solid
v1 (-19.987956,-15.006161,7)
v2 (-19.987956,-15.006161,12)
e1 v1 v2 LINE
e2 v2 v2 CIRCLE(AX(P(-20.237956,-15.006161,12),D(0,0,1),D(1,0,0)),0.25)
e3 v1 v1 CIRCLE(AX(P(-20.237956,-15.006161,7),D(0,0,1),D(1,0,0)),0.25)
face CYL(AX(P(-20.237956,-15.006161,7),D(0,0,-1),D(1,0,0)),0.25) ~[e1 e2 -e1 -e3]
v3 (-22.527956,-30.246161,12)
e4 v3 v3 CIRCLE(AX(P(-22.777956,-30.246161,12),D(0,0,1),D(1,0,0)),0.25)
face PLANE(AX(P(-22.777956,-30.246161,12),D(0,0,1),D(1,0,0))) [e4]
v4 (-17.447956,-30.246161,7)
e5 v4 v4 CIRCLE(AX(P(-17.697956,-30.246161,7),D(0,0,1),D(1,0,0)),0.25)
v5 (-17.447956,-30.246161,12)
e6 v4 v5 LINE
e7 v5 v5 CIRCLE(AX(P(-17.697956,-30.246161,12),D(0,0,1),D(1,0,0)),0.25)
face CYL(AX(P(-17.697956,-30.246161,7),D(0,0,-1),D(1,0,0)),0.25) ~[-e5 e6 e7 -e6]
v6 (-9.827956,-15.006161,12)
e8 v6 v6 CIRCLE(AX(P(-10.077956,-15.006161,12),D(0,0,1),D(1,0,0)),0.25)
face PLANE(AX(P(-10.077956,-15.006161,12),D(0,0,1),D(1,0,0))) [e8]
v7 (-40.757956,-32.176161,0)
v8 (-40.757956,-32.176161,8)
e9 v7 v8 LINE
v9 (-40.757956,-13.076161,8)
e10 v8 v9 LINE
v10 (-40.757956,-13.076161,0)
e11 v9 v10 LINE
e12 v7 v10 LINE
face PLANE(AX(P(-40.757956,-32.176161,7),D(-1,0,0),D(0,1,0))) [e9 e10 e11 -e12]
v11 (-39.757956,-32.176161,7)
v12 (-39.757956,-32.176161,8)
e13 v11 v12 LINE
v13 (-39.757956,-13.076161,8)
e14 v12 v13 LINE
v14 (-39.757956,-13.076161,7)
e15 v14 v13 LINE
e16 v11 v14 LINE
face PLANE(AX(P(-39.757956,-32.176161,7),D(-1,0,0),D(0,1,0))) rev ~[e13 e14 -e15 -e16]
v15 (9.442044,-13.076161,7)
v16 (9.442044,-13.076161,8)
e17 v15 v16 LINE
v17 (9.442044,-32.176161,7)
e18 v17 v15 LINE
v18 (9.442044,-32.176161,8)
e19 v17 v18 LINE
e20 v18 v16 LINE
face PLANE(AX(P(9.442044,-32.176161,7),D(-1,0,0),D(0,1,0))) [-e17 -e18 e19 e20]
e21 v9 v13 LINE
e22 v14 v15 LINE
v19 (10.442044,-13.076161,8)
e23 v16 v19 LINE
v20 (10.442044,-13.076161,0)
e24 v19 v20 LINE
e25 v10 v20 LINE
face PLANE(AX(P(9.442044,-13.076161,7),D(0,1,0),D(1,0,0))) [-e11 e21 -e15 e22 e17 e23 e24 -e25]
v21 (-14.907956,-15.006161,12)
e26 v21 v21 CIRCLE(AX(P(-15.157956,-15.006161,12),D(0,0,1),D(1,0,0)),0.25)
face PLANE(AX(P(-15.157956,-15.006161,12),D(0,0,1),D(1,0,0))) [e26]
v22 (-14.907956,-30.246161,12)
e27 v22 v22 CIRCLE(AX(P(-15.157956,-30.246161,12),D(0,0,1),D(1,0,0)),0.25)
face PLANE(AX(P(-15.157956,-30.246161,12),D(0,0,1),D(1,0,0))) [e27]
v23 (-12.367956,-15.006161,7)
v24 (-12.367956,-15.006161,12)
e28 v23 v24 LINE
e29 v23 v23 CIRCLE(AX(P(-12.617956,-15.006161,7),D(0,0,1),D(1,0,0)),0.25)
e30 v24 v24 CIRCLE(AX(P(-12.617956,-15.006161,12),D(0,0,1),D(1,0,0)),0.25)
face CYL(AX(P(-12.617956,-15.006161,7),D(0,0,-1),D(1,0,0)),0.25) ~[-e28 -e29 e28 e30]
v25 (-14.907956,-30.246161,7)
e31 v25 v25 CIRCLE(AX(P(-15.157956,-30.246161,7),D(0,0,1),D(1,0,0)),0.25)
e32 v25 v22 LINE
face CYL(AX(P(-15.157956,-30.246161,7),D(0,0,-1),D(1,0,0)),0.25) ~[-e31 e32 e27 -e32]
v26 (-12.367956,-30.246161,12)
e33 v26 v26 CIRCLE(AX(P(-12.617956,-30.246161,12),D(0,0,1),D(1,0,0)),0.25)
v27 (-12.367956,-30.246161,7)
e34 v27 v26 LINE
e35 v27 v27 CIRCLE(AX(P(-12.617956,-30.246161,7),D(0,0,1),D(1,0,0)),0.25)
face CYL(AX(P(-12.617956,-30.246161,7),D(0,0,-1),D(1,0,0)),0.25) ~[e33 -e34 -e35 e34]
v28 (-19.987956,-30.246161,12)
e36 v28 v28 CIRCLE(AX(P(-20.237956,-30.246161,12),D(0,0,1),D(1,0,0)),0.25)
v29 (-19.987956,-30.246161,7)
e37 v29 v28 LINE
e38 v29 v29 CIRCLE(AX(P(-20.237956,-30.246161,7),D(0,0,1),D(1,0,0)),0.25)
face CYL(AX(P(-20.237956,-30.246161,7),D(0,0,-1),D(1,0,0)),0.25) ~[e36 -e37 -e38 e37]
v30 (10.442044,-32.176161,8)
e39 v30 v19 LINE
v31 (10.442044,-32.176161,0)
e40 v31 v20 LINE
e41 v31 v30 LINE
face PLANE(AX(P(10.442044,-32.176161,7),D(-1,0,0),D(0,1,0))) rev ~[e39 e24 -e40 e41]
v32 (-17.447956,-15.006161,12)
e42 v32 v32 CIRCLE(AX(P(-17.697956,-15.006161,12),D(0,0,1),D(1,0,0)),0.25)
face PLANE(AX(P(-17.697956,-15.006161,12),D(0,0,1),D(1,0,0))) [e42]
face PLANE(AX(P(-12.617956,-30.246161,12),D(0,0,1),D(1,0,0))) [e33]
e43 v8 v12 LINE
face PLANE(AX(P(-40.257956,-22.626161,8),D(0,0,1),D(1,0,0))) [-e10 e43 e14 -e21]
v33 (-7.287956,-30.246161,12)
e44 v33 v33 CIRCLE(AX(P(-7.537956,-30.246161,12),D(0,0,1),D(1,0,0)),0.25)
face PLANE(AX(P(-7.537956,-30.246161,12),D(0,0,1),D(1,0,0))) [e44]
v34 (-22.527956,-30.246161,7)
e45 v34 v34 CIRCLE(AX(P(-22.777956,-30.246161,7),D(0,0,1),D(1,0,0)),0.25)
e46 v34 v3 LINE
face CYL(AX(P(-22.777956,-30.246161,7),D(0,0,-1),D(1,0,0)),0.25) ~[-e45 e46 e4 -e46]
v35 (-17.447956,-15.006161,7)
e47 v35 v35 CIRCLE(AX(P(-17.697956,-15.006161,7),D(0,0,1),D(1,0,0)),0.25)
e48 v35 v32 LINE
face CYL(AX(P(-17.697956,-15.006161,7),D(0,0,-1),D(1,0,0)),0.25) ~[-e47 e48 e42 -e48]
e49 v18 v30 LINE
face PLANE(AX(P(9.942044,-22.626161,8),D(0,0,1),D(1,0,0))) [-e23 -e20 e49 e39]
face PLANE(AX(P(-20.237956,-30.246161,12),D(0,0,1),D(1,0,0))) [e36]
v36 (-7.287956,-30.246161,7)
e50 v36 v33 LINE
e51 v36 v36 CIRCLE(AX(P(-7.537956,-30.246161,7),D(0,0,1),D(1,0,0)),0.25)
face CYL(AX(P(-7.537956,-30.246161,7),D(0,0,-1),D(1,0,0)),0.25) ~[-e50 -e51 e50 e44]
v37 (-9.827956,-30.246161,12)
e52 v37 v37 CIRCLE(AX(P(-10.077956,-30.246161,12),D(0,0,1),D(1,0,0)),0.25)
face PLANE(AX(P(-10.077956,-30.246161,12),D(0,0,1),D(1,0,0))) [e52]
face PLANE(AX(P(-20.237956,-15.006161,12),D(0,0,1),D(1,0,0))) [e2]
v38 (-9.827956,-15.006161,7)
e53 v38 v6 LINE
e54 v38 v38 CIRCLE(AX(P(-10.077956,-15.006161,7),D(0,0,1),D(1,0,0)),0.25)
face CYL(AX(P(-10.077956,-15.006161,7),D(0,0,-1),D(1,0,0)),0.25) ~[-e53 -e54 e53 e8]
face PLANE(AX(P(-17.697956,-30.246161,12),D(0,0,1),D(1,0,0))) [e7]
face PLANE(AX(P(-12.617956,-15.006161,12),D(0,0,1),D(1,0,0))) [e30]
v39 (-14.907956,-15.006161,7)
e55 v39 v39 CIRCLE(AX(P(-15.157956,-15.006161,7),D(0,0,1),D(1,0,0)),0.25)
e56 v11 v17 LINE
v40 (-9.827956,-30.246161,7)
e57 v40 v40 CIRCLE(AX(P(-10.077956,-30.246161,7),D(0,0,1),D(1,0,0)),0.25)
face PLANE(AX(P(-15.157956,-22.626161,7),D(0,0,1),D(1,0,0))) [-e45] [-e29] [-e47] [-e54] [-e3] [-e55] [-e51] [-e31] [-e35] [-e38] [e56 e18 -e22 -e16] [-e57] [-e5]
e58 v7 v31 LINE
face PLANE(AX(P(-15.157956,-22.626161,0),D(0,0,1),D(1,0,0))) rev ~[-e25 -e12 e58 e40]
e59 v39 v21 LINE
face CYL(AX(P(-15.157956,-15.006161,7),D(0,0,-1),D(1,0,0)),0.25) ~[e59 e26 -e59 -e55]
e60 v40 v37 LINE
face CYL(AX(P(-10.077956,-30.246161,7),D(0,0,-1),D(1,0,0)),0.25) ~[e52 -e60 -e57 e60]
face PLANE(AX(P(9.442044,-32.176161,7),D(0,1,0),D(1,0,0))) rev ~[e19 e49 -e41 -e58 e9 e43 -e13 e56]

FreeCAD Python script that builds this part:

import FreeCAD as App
import Part
import Sketcher
from FreeCAD import Vector


def add_polygon(sketch, points):
    """Adds a closed chain of lines whose ends are joined by coincident constraints."""
    first, n = sketch.GeometryCount, len(points)
    for a, b in zip(points, points[1:] + points[:1]):
        sketch.addGeometry(Part.LineSegment(App.Vector(*a, 0), App.Vector(*b, 0)), False)
    for i in range(n):
        sketch.addConstraint(Sketcher.Constraint("Coincident", first + i, 2, first + (i + 1) % n, 1))

doc = App.newDocument("Part")
body = doc.addObject("PartDesign::Body", "Body")

sketch1 = body.newObject("Sketcher::SketchObject", "Sketch")
sketch1.AttachmentSupport = (doc.getObject("XY_Plane"), [""])
sketch1.MapMode = "FlatFace"
add_polygon(sketch1, [(-41, -13), (-41, -32), (10, -32), (10, -13)])
sketch1.addConstraint([
    Sketcher.Constraint("Vertical", 0),
    Sketcher.Constraint("Horizontal", 1),
    Sketcher.Constraint("Vertical", 2),
    Sketcher.Constraint("Horizontal", 3),
    Sketcher.Constraint("DistanceX", 1, 1, 1, 2, 51.2),
    Sketcher.Constraint("DistanceY", 0, 2, 0, 1, 19.1),
    Sketcher.Constraint("DistanceY", 0, 2, -1, 1, 32.176161),
    Sketcher.Constraint("DistanceX", 0, 2, -1, 1, 40.757956),
])
pad1 = body.newObject("PartDesign::Pad", "Pad")
pad1.Profile = sketch1
pad1.Length = 7

sketch2 = body.newObject("Sketcher::SketchObject", "Sketch001")
sketch2.AttachmentSupport = (doc.getObject("XY_Plane"), [""])
sketch2.MapMode = "FlatFace"
sketch2.AttachmentOffset = App.Placement(Vector(0, 0, 7), App.Rotation())
add_polygon(sketch2, [(-40.8, -13.1), (-40.8, -32.2), (-39.8, -32.2), (-39.8, -13.1)])
sketch2.addConstraint([
    Sketcher.Constraint("Vertical", 0),
    Sketcher.Constraint("Horizontal", 1),
    Sketcher.Constraint("Vertical", 2),
    Sketcher.Constraint("Horizontal", 3),
    Sketcher.Constraint("DistanceX", 1, 1, 1, 2, 1.0),
    Sketcher.Constraint("DistanceY", 0, 2, 0, 1, 19.1),
    Sketcher.Constraint("DistanceY", 0, 2, -1, 1, 32.176161),
    Sketcher.Constraint("DistanceX", 0, 2, -1, 1, 40.757956),
])
pad2 = body.newObject("PartDesign::Pad", "Pad001")
pad2.Profile = sketch2
pad2.Length = 1

sketch3 = body.newObject("Sketcher::SketchObject", "Sketch002")
sketch3.AttachmentSupport = (doc.getObject("XY_Plane"), [""])
sketch3.MapMode = "FlatFace"
sketch3.AttachmentOffset = App.Placement(Vector(0, 0, 7), App.Rotation())
add_polygon(sketch3, [(9.4, -13.1), (9.4, -32.2), (10.4, -32.2), (10.4, -13.1)])
sketch3.addConstraint([
    Sketcher.Constraint("Vertical", 0),
    Sketcher.Constraint("Horizontal", 1),
    Sketcher.Constraint("Vertical", 2),
    Sketcher.Constraint("Horizontal", 3),
    Sketcher.Constraint("DistanceX", 1, 1, 1, 2, 1.0),
    Sketcher.Constraint("DistanceY", 0, 2, 0, 1, 19.1),
    Sketcher.Constraint("DistanceY", 0, 2, -1, 1, 32.176161),
    Sketcher.Constraint("DistanceX", -1, 1, 0, 2, 9.442044),
])
pad3 = body.newObject("PartDesign::Pad", "Pad002")
pad3.Profile = sketch3
pad3.Length = 1

sketch4 = body.newObject("Sketcher::SketchObject", "Sketch003")
sketch4.AttachmentSupport = (doc.getObject("XY_Plane"), [""])
sketch4.MapMode = "FlatFace"
sketch4.AttachmentOffset = App.Placement(Vector(0, 0, 7), App.Rotation())
sketch4.addGeometry([
    Part.Circle(Vector(-15.16, -15.01, 0), Vector(0, 0, 1), 0.25),
    Part.Circle(Vector(-15.16, -30.25, 0), Vector(0, 0, 1), 0.25),
    Part.Circle(Vector(-12.62, -15.01, 0), Vector(0, 0, 1), 0.25),
    Part.Circle(Vector(-10.08, -15.01, 0), Vector(0, 0, 1), 0.25),
    Part.Circle(Vector(-17.7, -15.01, 0), Vector(0, 0, 1), 0.25),
    Part.Circle(Vector(-20.24, -15.01, 0), Vector(0, 0, 1), 0.25),
    Part.Circle(Vector(-12.62, -30.25, 0), Vector(0, 0, 1), 0.25),
    Part.Circle(Vector(-10.08, -30.25, 0), Vector(0, 0, 1), 0.25),
    Part.Circle(Vector(-7.54, -30.25, 0), Vector(0, 0, 1), 0.25),
    Part.Circle(Vector(-17.7, -30.25, 0), Vector(0, 0, 1), 0.25),
    Part.Circle(Vector(-20.24, -30.25, 0), Vector(0, 0, 1), 0.25),
    Part.Circle(Vector(-22.78, -30.25, 0), Vector(0, 0, 1), 0.25),
], False)
sketch4.addConstraint([
    Sketcher.Constraint("Equal", 0, 1),
    Sketcher.Constraint("Equal", 1, 2),
    Sketcher.Constraint("Equal", 2, 3),
    Sketcher.Constraint("Equal", 3, 4),
    Sketcher.Constraint("Equal", 4, 5),
    Sketcher.Constraint("Equal", 5, 6),
    Sketcher.Constraint("Equal", 6, 7),
    Sketcher.Constraint("Equal", 7, 8),
    Sketcher.Constraint("Equal", 8, 9),
    Sketcher.Constraint("Equal", 9, 10),
    Sketcher.Constraint("Equal", 10, 11),
    Sketcher.Constraint("Horizontal", 0, 3, 2, 3),
    Sketcher.Constraint("Horizontal", 2, 3, 3, 3),
    Sketcher.Constraint("Horizontal", 3, 3, 4, 3),
    Sketcher.Constraint("Horizontal", 4, 3, 5, 3),
    Sketcher.Constraint("Horizontal", 1, 3, 6, 3),
    Sketcher.Constraint("Horizontal", 6, 3, 7, 3),
    Sketcher.Constraint("Horizontal", 7, 3, 8, 3),
    Sketcher.Constraint("Horizontal", 8, 3, 9, 3),
    Sketcher.Constraint("Horizontal", 9, 3, 10, 3),
    Sketcher.Constraint("Horizontal", 10, 3, 11, 3),
    Sketcher.Constraint("Vertical", 0, 3, 1, 3),
    Sketcher.Constraint("Vertical", 2, 3, 6, 3),
    Sketcher.Constraint("Vertical", 3, 3, 7, 3),
    Sketcher.Constraint("Vertical", 4, 3, 9, 3),
    Sketcher.Constraint("Vertical", 5, 3, 10, 3),
    Sketcher.Constraint("Diameter", 0, 0.5),
    Sketcher.Constraint("DistanceX", 10, 3, 8, 3, 12.7),
    Sketcher.Constraint("DistanceX", 11, 3, 7, 3, 12.7),
    Sketcher.Constraint("DistanceY", 1, 3, 0, 3, 15.24),
    Sketcher.Constraint("DistanceX", 0, 3, 2, 3, 2.54),
    Sketcher.Constraint("DistanceX", 2, 3, 3, 3, 2.54),
    Sketcher.Constraint("DistanceX", 4, 3, 0, 3, 2.54),
    Sketcher.Constraint("DistanceX", 5, 3, 4, 3, 2.54),
    Sketcher.Constraint("DistanceY", 0, 3, -1, 1, 15.006161),
    Sketcher.Constraint("DistanceX", 0, 3, -1, 1, 15.157956),
])
pad4 = body.newObject("PartDesign::Pad", "Pad003")
pad4.Profile = sketch4
pad4.Length = 5

doc.recompute()
